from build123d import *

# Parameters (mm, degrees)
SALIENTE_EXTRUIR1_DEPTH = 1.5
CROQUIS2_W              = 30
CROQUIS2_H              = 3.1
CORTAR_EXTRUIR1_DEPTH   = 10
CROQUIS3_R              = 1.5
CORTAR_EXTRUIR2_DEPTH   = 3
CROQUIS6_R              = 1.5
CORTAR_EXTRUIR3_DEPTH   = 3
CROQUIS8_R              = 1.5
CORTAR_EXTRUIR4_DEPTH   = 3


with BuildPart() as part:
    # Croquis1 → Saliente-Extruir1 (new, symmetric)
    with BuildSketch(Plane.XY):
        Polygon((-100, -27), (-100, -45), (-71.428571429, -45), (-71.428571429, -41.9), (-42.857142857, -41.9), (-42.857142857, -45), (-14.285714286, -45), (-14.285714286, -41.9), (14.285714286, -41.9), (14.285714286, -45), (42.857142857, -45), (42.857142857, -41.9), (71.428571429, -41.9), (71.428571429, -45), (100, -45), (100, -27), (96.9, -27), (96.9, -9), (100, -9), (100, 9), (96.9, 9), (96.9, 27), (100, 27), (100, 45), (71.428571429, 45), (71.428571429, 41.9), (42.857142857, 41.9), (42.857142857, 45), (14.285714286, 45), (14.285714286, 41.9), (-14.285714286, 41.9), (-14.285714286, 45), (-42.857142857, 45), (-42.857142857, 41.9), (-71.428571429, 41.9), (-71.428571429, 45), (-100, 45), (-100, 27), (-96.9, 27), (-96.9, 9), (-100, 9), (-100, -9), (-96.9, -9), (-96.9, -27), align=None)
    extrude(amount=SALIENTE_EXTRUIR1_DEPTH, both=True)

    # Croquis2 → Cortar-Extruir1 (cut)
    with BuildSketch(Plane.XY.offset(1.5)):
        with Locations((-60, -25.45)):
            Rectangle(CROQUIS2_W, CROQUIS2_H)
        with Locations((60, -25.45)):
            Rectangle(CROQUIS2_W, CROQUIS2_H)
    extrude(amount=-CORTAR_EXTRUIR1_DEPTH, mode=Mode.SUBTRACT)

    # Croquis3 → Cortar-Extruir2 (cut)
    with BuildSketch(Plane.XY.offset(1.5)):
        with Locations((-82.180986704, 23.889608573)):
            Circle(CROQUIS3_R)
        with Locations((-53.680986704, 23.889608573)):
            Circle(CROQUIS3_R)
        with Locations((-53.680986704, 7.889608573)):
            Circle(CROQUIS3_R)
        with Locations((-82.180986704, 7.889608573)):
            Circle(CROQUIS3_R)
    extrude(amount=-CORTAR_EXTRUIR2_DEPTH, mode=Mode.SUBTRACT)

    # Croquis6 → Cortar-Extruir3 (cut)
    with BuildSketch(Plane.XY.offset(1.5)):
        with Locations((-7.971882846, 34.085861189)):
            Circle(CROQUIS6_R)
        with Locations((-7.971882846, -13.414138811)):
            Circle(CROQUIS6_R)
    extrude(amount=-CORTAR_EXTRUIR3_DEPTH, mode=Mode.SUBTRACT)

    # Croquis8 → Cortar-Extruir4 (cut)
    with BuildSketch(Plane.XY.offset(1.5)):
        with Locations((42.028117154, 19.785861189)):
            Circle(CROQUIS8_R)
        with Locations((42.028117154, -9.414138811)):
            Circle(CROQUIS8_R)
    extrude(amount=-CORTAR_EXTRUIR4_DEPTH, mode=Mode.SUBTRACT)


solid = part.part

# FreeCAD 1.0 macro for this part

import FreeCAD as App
import Part
import Sketcher

doc = App.newDocument("Part")
body = doc.addObject("PartDesign::Body", "Body")

# Sketch on XY plane
sketch1 = body.newObject("Sketcher::SketchObject", "Sketch")
sketch1.AttachmentSupport = (doc.getObject("XY_Plane"), [""])
sketch1.MapMode = "FlatFace"
sketch1.addGeometry(Part.LineSegment(App.Vector(-100, -27, 0), App.Vector(-100, -45, 0)), False)
sketch1.addGeometry(Part.LineSegment(App.Vector(-100, -45, 0), App.Vector(-71.428571, -45, 0)), False)
sketch1.addGeometry(Part.LineSegment(App.Vector(-71.428571, -45, 0), App.Vector(-71.428571, -41.9, 0)), False)
sketch1.addGeometry(Part.LineSegment(App.Vector(-71.428571, -41.9, 0), App.Vector(-42.857143, -41.9, 0)), False)
sketch1.addGeometry(Part.LineSegment(App.Vector(-42.857143, -41.9, 0), App.Vector(-42.857143, -45, 0)), False)
sketch1.addGeometry(Part.LineSegment(App.Vector(-42.857143, -45, 0), App.Vector(-14.285714, -45, 0)), False)
sketch1.addGeometry(Part.LineSegment(App.Vector(-14.285714, -45, 0), App.Vector(-14.285714, -41.9, 0)), False)
sketch1.addGeometry(Part.LineSegment(App.Vector(-14.285714, -41.9, 0), App.Vector(14.285714, -41.9, 0)), False)
sketch1.addGeometry(Part.LineSegment(App.Vector(14.285714, -41.9, 0), App.Vector(14.285714, -45, 0)), False)
sketch1.addGeometry(Part.LineSegment(App.Vector(14.285714, -45, 0), App.Vector(42.857143, -45, 0)), False)
sketch1.addGeometry(Part.LineSegment(App.Vector(42.857143, -45, 0), App.Vector(42.857143, -41.9, 0)), False)
sketch1.addGeometry(Part.LineSegment(App.Vector(42.857143, -41.9, 0), App.Vector(71.428571, -41.9, 0)), False)
sketch1.addGeometry(Part.LineSegment(App.Vector(71.428571, -41.9, 0), App.Vector(71.428571, -45, 0)), False)
sketch1.addGeometry(Part.LineSegment(App.Vector(71.428571, -45, 0), App.Vector(100, -45, 0)), False)
sketch1.addGeometry(Part.LineSegment(App.Vector(100, -45, 0), App.Vector(100, -27, 0)), False)
sketch1.addGeometry(Part.LineSegment(App.Vector(100, -27, 0), App.Vector(96.9, -27, 0)), False)
sketch1.addGeometry(Part.LineSegment(App.Vector(96.9, -27, 0), App.Vector(96.9, -9, 0)), False)
sketch1.addGeometry(Part.LineSegment(App.Vector(96.9, -9, 0), App.Vector(100, -9, 0)), False)
sketch1.addGeometry(Part.LineSegment(App.Vector(100, -9, 0), App.Vector(100, 9, 0)), False)
sketch1.addGeometry(Part.LineSegment(App.Vector(100, 9, 0), App.Vector(96.9, 9, 0)), False)
sketch1.addGeometry(Part.LineSegment(App.Vector(96.9, 9, 0), App.Vector(96.9, 27, 0)), False)
sketch1.addGeometry(Part.LineSegment(App.Vector(96.9, 27, 0), App.Vector(100, 27, 0)), False)
sketch1.addGeometry(Part.LineSegment(App.Vector(100, 27, 0), App.Vector(100, 45, 0)), False)
sketch1.addGeometry(Part.LineSegment(App.Vector(100, 45, 0), App.Vector(71.428571, 45, 0)), False)
sketch1.addGeometry(Part.LineSegment(App.Vector(71.428571, 45, 0), App.Vector(71.428571, 41.9, 0)), False)
sketch1.addGeometry(Part.LineSegment(App.Vector(71.428571, 41.9, 0), App.Vector(42.857143, 41.9, 0)), False)
sketch1.addGeometry(Part.LineSegment(App.Vector(42.857143, 41.9, 0), App.Vector(42.857143, 45, 0)), False)
sketch1.addGeometry(Part.LineSegment(App.Vector(42.857143, 45, 0), App.Vector(14.285714, 45, 0)), False)
sketch1.addGeometry(Part.LineSegment(App.Vector(14.285714, 45, 0), App.Vector(14.285714, 41.9, 0)), False)
sketch1.addGeometry(Part.LineSegment(App.Vector(14.285714, 41.9, 0), App.Vector(-14.285714, 41.9, 0)), False)
sketch1.addGeometry(Part.LineSegment(App.Vector(-14.285714, 41.9, 0), App.Vector(-14.285714, 45, 0)), False)
sketch1.addGeometry(Part.LineSegment(App.Vector(-14.285714, 45, 0), App.Vector(-42.857143, 45, 0)), False)
sketch1.addGeometry(Part.LineSegment(App.Vector(-42.857143, 45, 0), App.Vector(-42.857143, 41.9, 0)), False)
sketch1.addGeometry(Part.LineSegment(App.Vector(-42.857143, 41.9, 0), App.Vector(-71.428571, 41.9, 0)), False)
sketch1.addGeometry(Part.LineSegment(App.Vector(-71.428571, 41.9, 0), App.Vector(-71.428571, 45, 0)), False)
sketch1.addGeometry(Part.LineSegment(App.Vector(-71.428571, 45, 0), App.Vector(-100, 45, 0)), False)
sketch1.addGeometry(Part.LineSegment(App.Vector(-100, 45, 0), App.Vector(-100, 27, 0)), False)
sketch1.addGeometry(Part.LineSegment(App.Vector(-100, 27, 0), App.Vector(-96.9, 27, 0)), False)
sketch1.addGeometry(Part.LineSegment(App.Vector(-96.9, 27, 0), App.Vector(-96.9, 9, 0)), False)
sketch1.addGeometry(Part.LineSegment(App.Vector(-96.9, 9, 0), App.Vector(-100, 9, 0)), False)
sketch1.addGeometry(Part.LineSegment(App.Vector(-100, 9, 0), App.Vector(-100, -9, 0)), False)
sketch1.addGeometry(Part.LineSegment(App.Vector(-100, -9, 0), App.Vector(-96.9, -9, 0)), False)
sketch1.addGeometry(Part.LineSegment(App.Vector(-96.9, -9, 0), App.Vector(-96.9, -27, 0)), False)
sketch1.addGeometry(Part.LineSegment(App.Vector(-96.9, -27, 0), App.Vector(-100, -27, 0)), False)
sketch1.addConstraint(Sketcher.Constraint("Coincident", 0, 2, 1, 1))
sketch1.addConstraint(Sketcher.Constraint("Coincident", 1, 2, 2, 1))
sketch1.addConstraint(Sketcher.Constraint("Coincident", 2, 2, 3, 1))
sketch1.addConstraint(Sketcher.Constraint("Coincident", 3, 2, 4, 1))
sketch1.addConstraint(Sketcher.Constraint("Coincident", 4, 2, 5, 1))
sketch1.addConstraint(Sketcher.Constraint("Coincident", 5, 2, 6, 1))
sketch1.addConstraint(Sketcher.Constraint("Coincident", 6, 2, 7, 1))
sketch1.addConstraint(Sketcher.Constraint("Coincident", 7, 2, 8, 1))
sketch1.addConstraint(Sketcher.Constraint("Coincident", 8, 2, 9, 1))
sketch1.addConstraint(Sketcher.Constraint("Coincident", 9, 2, 10, 1))
sketch1.addConstraint(Sketcher.Constraint("Coincident", 10, 2, 11, 1))
sketch1.addConstraint(Sketcher.Constraint("Coincident", 11, 2, 12, 1))
sketch1.addConstraint(Sketcher.Constraint("Coincident", 12, 2, 13, 1))
sketch1.addConstraint(Sketcher.Constraint("Coincident", 13, 2, 14, 1))
sketch1.addConstraint(Sketcher.Constraint("Coincident", 14, 2, 15, 1))
sketch1.addConstraint(Sketcher.Constraint("Coincident", 15, 2, 16, 1))
sketch1.addConstraint(Sketcher.Constraint("Coincident", 16, 2, 17, 1))
sketch1.addConstraint(Sketcher.Constraint("Coincident", 17, 2, 18, 1))
sketch1.addConstraint(Sketcher.Constraint("Coincident", 18, 2, 19, 1))
sketch1.addConstraint(Sketcher.Constraint("Coincident", 19, 2, 20, 1))
sketch1.addConstraint(Sketcher.Constraint("Coincident", 20, 2, 21, 1))
sketch1.addConstraint(Sketcher.Constraint("Coincident", 21, 2, 22, 1))
sketch1.addConstraint(Sketcher.Constraint("Coincident", 22, 2, 23, 1))
sketch1.addConstraint(Sketcher.Constraint("Coincident", 23, 2, 24, 1))
sketch1.addConstraint(Sketcher.Constraint("Coincident", 24, 2, 25, 1))
sketch1.addConstraint(Sketcher.Constraint("Coincident", 25, 2, 26, 1))
sketch1.addConstraint(Sketcher.Constraint("Coincident", 26, 2, 27, 1))
sketch1.addConstraint(Sketcher.Constraint("Coincident", 27, 2, 28, 1))
sketch1.addConstraint(Sketcher.Constraint("Coincident", 28, 2, 29, 1))
sketch1.addConstraint(Sketcher.Constraint("Coincident", 29, 2, 30, 1))
sketch1.addConstraint(Sketcher.Constraint("Coincident", 30, 2, 31, 1))
sketch1.addConstraint(Sketcher.Constraint("Coincident", 31, 2, 32, 1))
sketch1.addConstraint(Sketcher.Constraint("Coincident", 32, 2, 33, 1))
sketch1.addConstraint(Sketcher.Constraint("Coincident", 33, 2, 34, 1))
sketch1.addConstraint(Sketcher.Constraint("Coincident", 34, 2, 35, 1))
sketch1.addConstraint(Sketcher.Constraint("Coincident", 35, 2, 36, 1))
sketch1.addConstraint(Sketcher.Constraint("Coincident", 36, 2, 37, 1))
sketch1.addConstraint(Sketcher.Constraint("Coincident", 37, 2, 38, 1))
sketch1.addConstraint(Sketcher.Constraint("Coincident", 38, 2, 39, 1))
sketch1.addConstraint(Sketcher.Constraint("Coincident", 39, 2, 40, 1))
sketch1.addConstraint(Sketcher.Constraint("Coincident", 40, 2, 41, 1))
sketch1.addConstraint(Sketcher.Constraint("Coincident", 41, 2, 42, 1))
sketch1.addConstraint(Sketcher.Constraint("Coincident", 42, 2, 43, 1))
sketch1.addConstraint(Sketcher.Constraint("Coincident", 43, 2, 0, 1))
sketch1.addConstraint(Sketcher.Constraint("Vertical", 0))
sketch1.addConstraint(Sketcher.Constraint("Horizontal", 1))
sketch1.addConstraint(Sketcher.Constraint("Vertical", 2))
sketch1.addConstraint(Sketcher.Constraint("Horizontal", 3))
sketch1.addConstraint(Sketcher.Constraint("Vertical", 4))
sketch1.addConstraint(Sketcher.Constraint("Horizontal", 5))
sketch1.addConstraint(Sketcher.Constraint("Vertical", 6))
sketch1.addConstraint(Sketcher.Constraint("Horizontal", 7))
sketch1.addConstraint(Sketcher.Constraint("Vertical", 8))
sketch1.addConstraint(Sketcher.Constraint("Horizontal", 9))
sketch1.addConstraint(Sketcher.Constraint("Vertical", 10))
sketch1.addConstraint(Sketcher.Constraint("Horizontal", 11))
sketch1.addConstraint(Sketcher.Constraint("Vertical", 12))
sketch1.addConstraint(Sketcher.Constraint("Horizontal", 13))
sketch1.addConstraint(Sketcher.Constraint("Vertical", 14))
sketch1.addConstraint(Sketcher.Constraint("Horizontal", 15))
sketch1.addConstraint(Sketcher.Constraint("Vertical", 16))
sketch1.addConstraint(Sketcher.Constraint("Horizontal", 17))
sketch1.addConstraint(Sketcher.Constraint("Vertical", 18))
sketch1.addConstraint(Sketcher.Constraint("Horizontal", 19))
sketch1.addConstraint(Sketcher.Constraint("Vertical", 20))
sketch1.addConstraint(Sketcher.Constraint("Horizontal", 21))
sketch1.addConstraint(Sketcher.Constraint("Vertical", 22))
sketch1.addConstraint(Sketcher.Constraint("Horizontal", 23))
sketch1.addConstraint(Sketcher.Constraint("Vertical", 24))
sketch1.addConstraint(Sketcher.Constraint("Horizontal", 25))
sketch1.addConstraint(Sketcher.Constraint("Vertical", 26))
sketch1.addConstraint(Sketcher.Constraint("Horizontal", 27))
sketch1.addConstraint(Sketcher.Constraint("Vertical", 28))
sketch1.addConstraint(Sketcher.Constraint("Horizontal", 29))
sketch1.addConstraint(Sketcher.Constraint("Vertical", 30))
sketch1.addConstraint(Sketcher.Constraint("Horizontal", 31))
sketch1.addConstraint(Sketcher.Constraint("Vertical", 32))
sketch1.addConstraint(Sketcher.Constraint("Horizontal", 33))
sketch1.addConstraint(Sketcher.Constraint("Vertical", 34))
sketch1.addConstraint(Sketcher.Constraint("Horizontal", 35))
sketch1.addConstraint(Sketcher.Constraint("Vertical", 36))
sketch1.addConstraint(Sketcher.Constraint("Horizontal", 37))
sketch1.addConstraint(Sketcher.Constraint("Vertical", 38))
sketch1.addConstraint(Sketcher.Constraint("Horizontal", 39))
sketch1.addConstraint(Sketcher.Constraint("Vertical", 40))
sketch1.addConstraint(Sketcher.Constraint("Horizontal", 41))
sketch1.addConstraint(Sketcher.Constraint("Vertical", 42))
sketch1.addConstraint(Sketcher.Constraint("Horizontal", 43))
sketch1.addConstraint(Sketcher.Constraint("Symmetric", 0, 2, 22, 2, -1, 1))
sketch1.addConstraint(Sketcher.Constraint("Symmetric", 2, 2, 24, 2, -1, 1))
sketch1.addConstraint(Sketcher.Constraint("Symmetric", 4, 2, 26, 2, -1, 1))
sketch1.addConstraint(Sketcher.Constraint("Symmetric", 6, 2, 28, 2, -1, 1))
sketch1.addConstraint(Sketcher.Constraint("Symmetric", 8, 2, 30, 2, -1, 1))
sketch1.addConstraint(Sketcher.Constraint("Symmetric", 10, 2, 32, 2, -1, 1))
sketch1.addConstraint(Sketcher.Constraint("Symmetric", 12, 2, 34, 2, -1, 1))
sketch1.addConstraint(Sketcher.Constraint("Symmetric", 14, 2, 36, 2, -1, 1))
sketch1.addConstraint(Sketcher.Constraint("Symmetric", 16, 2, 38, 2, -1, 1))
sketch1.addConstraint(Sketcher.Constraint("Symmetric", 18, 2, 40, 2, -1, 1))
sketch1.addConstraint(Sketcher.Constraint("Symmetric", 20, 2, 42, 2, -1, 1))
sketch1.addConstraint(Sketcher.Constraint("Symmetric", 5, 2, 8, 2, -2))
sketch1.addConstraint(Sketcher.Constraint("Symmetric", 3, 2, 10, 2, -2))
sketch1.addConstraint(Sketcher.Constraint("Symmetric", 1, 2, 12, 2, -2))
sketch1.addConstraint(Sketcher.Constraint("Symmetric", 21, 2, 36, 2, -2))
sketch1.addConstraint(Sketcher.Constraint("Symmetric", 19, 2, 38, 2, -2))
sketch1.addConstraint(Sketcher.Constraint("Horizontal", 1, 2, 4, 2))
sketch1.addConstraint(Sketcher.Constraint("Horizontal", 3, 2, 6, 2))
sketch1.addConstraint(Sketcher.Constraint("Vertical", 14, 2, 17, 2))
sketch1.addConstraint(Sketcher.Constraint("Equal", 1, 3))
sketch1.addConstraint(Sketcher.Constraint("Equal", 3, 5))
sketch1.addConstraint(Sketcher.Constraint("Equal", 5, 7))
sketch1.addConstraint(Sketcher.Constraint("Equal", 43, 2))
sketch1.addConstraint(Sketcher.Constraint("Equal", 14, 16))
sketch1.addConstraint(Sketcher.Constraint("Equal", 16, 18))
sketch1.addConstraint(Sketcher.Constraint("DistanceY", 0, 2, 0, 1, 18.0))
sketch1.addConstraint(Sketcher.Constraint("DistanceX", 15, 2, 15, 1, 3.1))
sketch1.addConstraint(Sketcher.Constraint("DistanceX", 0, 2, -1, 1, 100.0))
pad1 = body.newObject("PartDesign::Pad", "Pad")
pad1.Profile = sketch1
pad1.Length = 3
pad1.Midplane = True

# Sketch on XY plane
sketch2 = body.newObject("Sketcher::SketchObject", "Sketch001")
sketch2.AttachmentSupport = (doc.getObject("XY_Plane"), [""])
sketch2.MapMode = "FlatFace"
sketch2.AttachmentOffset = App.Placement(App.Vector(0, 0, 1.5), App.Rotation())
sketch2.addGeometry(Part.LineSegment(App.Vector(-75, -23.9, 0), App.Vector(-75, -27, 0)), False)
sketch2.addGeometry(Part.LineSegment(App.Vector(-75, -27, 0), App.Vector(-45, -27, 0)), False)
sketch2.addGeometry(Part.LineSegment(App.Vector(-45, -27, 0), App.Vector(-45, -23.9, 0)), False)
sketch2.addGeometry(Part.LineSegment(App.Vector(-45, -23.9, 0), App.Vector(-75, -23.9, 0)), False)
sketch2.addGeometry(Part.LineSegment(App.Vector(45, -23.9, 0), App.Vector(45, -27, 0)), False)
sketch2.addGeometry(Part.LineSegment(App.Vector(45, -27, 0), App.Vector(75, -27, 0)), False)
sketch2.addGeometry(Part.LineSegment(App.Vector(75, -27, 0), App.Vector(75, -23.9, 0)), False)
sketch2.addGeometry(Part.LineSegment(App.Vector(75, -23.9, 0), App.Vector(45, -23.9, 0)), False)
sketch2.addConstraint(Sketcher.Constraint("Coincident", 0, 2, 1, 1))
sketch2.addConstraint(Sketcher.Constraint("Coincident", 1, 2, 2, 1))
sketch2.addConstraint(Sketcher.Constraint("Coincident", 2, 2, 3, 1))
sketch2.addConstraint(Sketcher.Constraint("Coincident", 3, 2, 0, 1))
sketch2.addConstraint(Sketcher.Constraint("Coincident", 4, 2, 5, 1))
sketch2.addConstraint(Sketcher.Constraint("Coincident", 5, 2, 6, 1))
sketch2.addConstraint(Sketcher.Constraint("Coincident", 6, 2, 7, 1))
sketch2.addConstraint(Sketcher.Constraint("Coincident", 7, 2, 4, 1))
sketch2.addConstraint(Sketcher.Constraint("Vertical", 0))
sketch2.addConstraint(Sketcher.Constraint("Horizontal", 1))
sketch2.addConstraint(Sketcher.Constraint("Vertical", 2))
sketch2.addConstraint(Sketcher.Constraint("Horizontal", 3))
sketch2.addConstraint(Sketcher.Constraint("Vertical", 4))
sketch2.addConstraint(Sketcher.Constraint("Horizontal", 5))
sketch2.addConstraint(Sketcher.Constraint("Vertical", 6))
sketch2.addConstraint(Sketcher.Constraint("Horizontal", 7))
sketch2.addConstraint(Sketcher.Constraint("Symmetric", 1, 2, 4, 2, -2))
sketch2.addConstraint(Sketcher.Constraint("Symmetric", 3, 2, 6, 2, -2))
sketch2.addConstraint(Sketcher.Constraint("DistanceX", 1, 1, 1, 2, 30.0))
sketch2.addConstraint(Sketcher.Constraint("DistanceY", 0, 2, 0, 1, 3.1))
sketch2.addConstraint(Sketcher.Constraint("DistanceX", 0, 2, -1, 1, 75.0))
sketch2.addConstraint(Sketcher.Constraint("DistanceY", 0, 2, -1, 1, 27.0))
pocket1 = body.newObject("PartDesign::Pocket", "Pocket")
pocket1.Profile = sketch2
pocket1.Length = 10

# Sketch on XY plane
sketch3 = body.newObject("Sketcher::SketchObject", "Sketch002")
sketch3.AttachmentSupport = (doc.getObject("XY_Plane"), [""])
sketch3.MapMode = "FlatFace"
sketch3.AttachmentOffset = App.Placement(App.Vector(0, 0, 1.5), App.Rotation())
sketch3.addGeometry(Part.Circle(App.Vector(-82.180987, 23.889609, 0), App.Vector(0, 0, 1), 1.5), False)
sketch3.addGeometry(Part.Circle(App.Vector(-53.680987, 23.889609, 0), App.Vector(0, 0, 1), 1.5), False)
sketch3.addGeometry(Part.Circle(App.Vector(-53.680987, 7.889609, 0), App.Vector(0, 0, 1), 1.5), False)
sketch3.addGeometry(Part.Circle(App.Vector(-82.180987, 7.889609, 0), App.Vector(0, 0, 1), 1.5), False)
sketch3.addConstraint(Sketcher.Constraint("Equal", 0, 1))
sketch3.addConstraint(Sketcher.Constraint("Equal", 1, 2))
sketch3.addConstraint(Sketcher.Constraint("Equal", 2, 3))
sketch3.addConstraint(Sketcher.Constraint("Horizontal", 0, 3, 1, 3))
sketch3.addConstraint(Sketcher.Constraint("Horizontal", 2, 3, 3, 3))
sketch3.addConstraint(Sketcher.Constraint("Vertical", 1, 3, 2, 3))
sketch3.addConstraint(Sketcher.Constraint("Vertical", 0, 3, 3, 3))
sketch3.addConstraint(Sketcher.Constraint("Diameter", 0, 3.0))
sketch3.addConstraint(Sketcher.Constraint("DistanceY", 2, 3, 1, 3, 16.0))
sketch3.addConstraint(Sketcher.Constraint("DistanceX", 0, 3, 1, 3, 28.5))
sketch3.addConstraint(Sketcher.Constraint("DistanceY", -1, 1, 0, 3, 23.889609))
sketch3.addConstraint(Sketcher.Constraint("DistanceX", 0, 3, -1, 1, 82.180987))
pocket2 = body.newObject("PartDesign::Pocket", "Pocket001")
pocket2.Profile = sketch3
pocket2.Length = 3

# Sketch on XY plane
sketch4 = body.newObject("Sketcher::SketchObject", "Sketch003")
sketch4.AttachmentSupport = (doc.getObject("XY_Plane"), [""])
sketch4.MapMode = "FlatFace"
sketch4.AttachmentOffset = App.Placement(App.Vector(0, 0, 1.5), App.Rotation())
sketch4.addGeometry(Part.Circle(App.Vector(-7.971883, 34.085861, 0), App.Vector(0, 0, 1), 1.5), False)
sketch4.addGeometry(Part.Circle(App.Vector(-7.971883, -13.414139, 0), App.Vector(0, 0, 1), 1.5), False)
sketch4.addConstraint(Sketcher.Constraint("Equal", 0, 1))
sketch4.addConstraint(Sketcher.Constraint("Vertical", 0, 3, 1, 3))
sketch4.addConstraint(Sketcher.Constraint("Diameter", 0, 3.0))
sketch4.addConstraint(Sketcher.Constraint("DistanceY", 1, 3, 0, 3, 47.5))
sketch4.addConstraint(Sketcher.Constraint("DistanceY", -1, 1, 0, 3, 34.085861))
sketch4.addConstraint(Sketcher.Constraint("DistanceX", 0, 3, -1, 1, 7.971883))
pocket3 = body.newObject("PartDesign::Pocket", "Pocket002")
pocket3.Profile = sketch4
pocket3.Length = 3

# Sketch on XY plane
sketch5 = body.newObject("Sketcher::SketchObject", "Sketch004")
sketch5.AttachmentSupport = (doc.getObject("XY_Plane"), [""])
sketch5.MapMode = "FlatFace"
sketch5.AttachmentOffset = App.Placement(App.Vector(0, 0, 1.5), App.Rotation())
sketch5.addGeometry(Part.Circle(App.Vector(42.028117, 19.785861, 0), App.Vector(0, 0, 1), 1.5), False)
sketch5.addGeometry(Part.Circle(App.Vector(42.028117, -9.414139, 0), App.Vector(0, 0, 1), 1.5), False)
sketch5.addConstraint(Sketcher.Constraint("Equal", 0, 1))
sketch5.addConstraint(Sketcher.Constraint("Vertical", 0, 3, 1, 3))
sketch5.addConstraint(Sketcher.Constraint("Diameter", 0, 3.0))
sketch5.addConstraint(Sketcher.Constraint("DistanceY", 1, 3, 0, 3, 29.2))
sketch5.addConstraint(Sketcher.Constraint("DistanceY", -1, 1, 0, 3, 19.785861))
sketch5.addConstraint(Sketcher.Constraint("DistanceX", -1, 1, 0, 3, 42.028117))
pocket4 = body.newObject("PartDesign::Pocket", "Pocket003")
pocket4.Profile = sketch5
pocket4.Length = 3

doc.recompute()
